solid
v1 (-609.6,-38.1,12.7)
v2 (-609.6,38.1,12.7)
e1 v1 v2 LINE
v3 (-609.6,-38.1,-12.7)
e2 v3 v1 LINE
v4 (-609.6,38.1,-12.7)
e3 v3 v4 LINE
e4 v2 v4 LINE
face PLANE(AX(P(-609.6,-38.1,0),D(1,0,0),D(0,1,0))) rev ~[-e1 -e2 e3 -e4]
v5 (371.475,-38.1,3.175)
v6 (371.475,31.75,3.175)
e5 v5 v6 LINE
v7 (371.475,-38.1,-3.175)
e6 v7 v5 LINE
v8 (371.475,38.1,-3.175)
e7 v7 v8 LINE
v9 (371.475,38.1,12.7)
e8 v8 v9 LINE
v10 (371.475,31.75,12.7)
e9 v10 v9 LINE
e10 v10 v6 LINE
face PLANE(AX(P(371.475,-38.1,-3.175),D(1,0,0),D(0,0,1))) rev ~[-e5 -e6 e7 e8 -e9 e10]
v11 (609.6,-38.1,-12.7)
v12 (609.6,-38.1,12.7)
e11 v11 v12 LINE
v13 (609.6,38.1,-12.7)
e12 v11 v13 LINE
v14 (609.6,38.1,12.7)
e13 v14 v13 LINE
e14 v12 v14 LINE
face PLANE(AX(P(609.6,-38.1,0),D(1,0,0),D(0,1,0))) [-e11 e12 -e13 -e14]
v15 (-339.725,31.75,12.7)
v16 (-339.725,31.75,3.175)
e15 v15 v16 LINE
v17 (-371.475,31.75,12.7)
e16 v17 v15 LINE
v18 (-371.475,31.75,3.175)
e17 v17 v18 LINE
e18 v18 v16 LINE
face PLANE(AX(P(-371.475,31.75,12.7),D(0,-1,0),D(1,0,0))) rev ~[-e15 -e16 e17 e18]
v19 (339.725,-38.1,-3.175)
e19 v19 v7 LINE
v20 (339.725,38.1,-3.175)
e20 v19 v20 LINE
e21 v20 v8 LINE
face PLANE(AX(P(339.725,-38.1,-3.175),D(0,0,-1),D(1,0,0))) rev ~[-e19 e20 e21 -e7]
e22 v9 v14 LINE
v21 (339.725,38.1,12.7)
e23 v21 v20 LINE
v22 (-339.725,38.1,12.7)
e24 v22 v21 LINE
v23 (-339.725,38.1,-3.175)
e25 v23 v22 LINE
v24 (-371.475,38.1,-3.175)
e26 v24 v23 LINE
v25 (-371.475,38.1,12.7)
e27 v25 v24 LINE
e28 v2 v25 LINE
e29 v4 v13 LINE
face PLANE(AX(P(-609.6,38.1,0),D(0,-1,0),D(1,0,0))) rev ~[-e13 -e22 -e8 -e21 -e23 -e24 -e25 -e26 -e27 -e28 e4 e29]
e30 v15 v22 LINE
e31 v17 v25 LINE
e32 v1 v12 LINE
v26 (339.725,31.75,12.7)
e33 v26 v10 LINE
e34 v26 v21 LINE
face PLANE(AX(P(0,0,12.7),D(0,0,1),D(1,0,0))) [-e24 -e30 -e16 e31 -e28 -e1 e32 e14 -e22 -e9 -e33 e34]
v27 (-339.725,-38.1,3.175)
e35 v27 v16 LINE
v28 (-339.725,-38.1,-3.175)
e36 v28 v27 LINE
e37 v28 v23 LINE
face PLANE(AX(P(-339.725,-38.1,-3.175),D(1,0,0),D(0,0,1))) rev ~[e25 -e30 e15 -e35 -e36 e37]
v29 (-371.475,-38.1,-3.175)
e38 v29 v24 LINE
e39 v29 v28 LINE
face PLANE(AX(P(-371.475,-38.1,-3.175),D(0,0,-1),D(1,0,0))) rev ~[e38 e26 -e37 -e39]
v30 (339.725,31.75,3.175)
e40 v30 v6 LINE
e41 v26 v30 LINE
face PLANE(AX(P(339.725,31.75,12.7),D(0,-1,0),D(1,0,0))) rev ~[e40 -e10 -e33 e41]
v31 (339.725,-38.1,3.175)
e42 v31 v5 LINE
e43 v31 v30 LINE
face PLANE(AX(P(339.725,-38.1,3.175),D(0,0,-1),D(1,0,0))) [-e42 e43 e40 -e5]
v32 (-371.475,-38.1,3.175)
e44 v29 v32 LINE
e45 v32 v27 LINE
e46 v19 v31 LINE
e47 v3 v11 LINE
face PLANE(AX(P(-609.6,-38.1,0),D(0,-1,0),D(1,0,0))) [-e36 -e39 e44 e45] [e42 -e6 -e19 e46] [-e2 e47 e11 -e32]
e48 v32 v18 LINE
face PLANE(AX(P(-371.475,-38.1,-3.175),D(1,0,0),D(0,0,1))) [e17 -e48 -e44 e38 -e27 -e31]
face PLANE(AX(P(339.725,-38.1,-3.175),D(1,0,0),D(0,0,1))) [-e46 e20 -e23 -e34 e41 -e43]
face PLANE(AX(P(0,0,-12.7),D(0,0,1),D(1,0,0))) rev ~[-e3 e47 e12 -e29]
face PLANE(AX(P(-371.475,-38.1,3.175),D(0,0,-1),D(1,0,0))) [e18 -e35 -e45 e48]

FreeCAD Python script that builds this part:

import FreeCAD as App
import Part
import Sketcher
from FreeCAD import Vector
Q = App.Units.Quantity


def add_polygon(sketch, points):
    """Adds a closed chain of lines whose ends are joined by coincident constraints."""
    first, n = sketch.GeometryCount, len(points)
    for a, b in zip(points, points[1:] + points[:1]):
        sketch.addGeometry(Part.LineSegment(App.Vector(*a, 0), App.Vector(*b, 0)), False)
    for i in range(n):
        sketch.addConstraint(Sketcher.Constraint("Coincident", first + i, 2, first + (i + 1) % n, 1))

doc = App.newDocument("Part")
body = doc.addObject("PartDesign::Body", "Body")

# Sketch on XY plane
sketch1 = doc.addObject("Sketcher::SketchObject", "Sketch")
body.addObject(sketch1)
sketch1.AttachmentSupport = (doc.XY_Plane, [""])
sketch1.MapMode = "FlatFace"
add_polygon(sketch1, [(-610, 38), (-610, -38), (610, -38), (610, 38)])  # lines 0-3
sketch1.addConstraint([
    Sketcher.Constraint("Vertical", 0),
    Sketcher.Constraint("Horizontal", 1),
    Sketcher.Constraint("Vertical", 2),
    Sketcher.Constraint("Horizontal", 3),
    Sketcher.Constraint("Symmetric", 0, 2, 2, 2, -1, 1),
    Sketcher.Constraint("DistanceX", 1, 1, 1, 2, Q("48 in")),
    Sketcher.Constraint("DistanceY", 0, 2, 0, 1, Q("3 in")),
])
pad1 = doc.addObject("PartDesign::Pad", "Pad")
body.addObject(pad1)
pad1.Profile = sketch1
pad1.Length = Q("1 in")
pad1.Midplane = True

# Sketch on XZ plane
sketch2 = doc.addObject("Sketcher::SketchObject", "Sketch001")
body.addObject(sketch2)
sketch2.AttachmentSupport = (doc.XZ_Plane, [""])
sketch2.MapMode = "FlatFace"
sketch2.AttachmentOffset = App.Placement(Vector(0, 0, 1.5 * 25.4), App.Rotation())
add_polygon(sketch2, [(-371, 3), (-371, -3), (-340, -3), (-340, 3)])  # lines 0-3
sketch2.addConstraint([
    Sketcher.Constraint("Vertical", 0),
    Sketcher.Constraint("Horizontal", 1),
    Sketcher.Constraint("Vertical", 2),
    Sketcher.Constraint("Horizontal", 3),
    Sketcher.Constraint("DistanceX", 1, 1, 1, 2, Q("1.25 in")),
    Sketcher.Constraint("DistanceY", 0, 2, 0, 1, Q("0.25 in")),
    Sketcher.Constraint("DistanceX", 0, 2, -1, 1, Q("14.625 in")),
    Sketcher.Constraint("DistanceY", 0, 2, -1, 1, Q("0.125 in")),
])
pocket1 = doc.addObject("PartDesign::Pocket", "Pocket")
body.addObject(pocket1)
pocket1.Profile = sketch2
pocket1.Type = "ThroughAll"

# Sketch on XZ plane
sketch3 = doc.addObject("Sketcher::SketchObject", "Sketch002")
body.addObject(sketch3)
sketch3.AttachmentSupport = (doc.XZ_Plane, [""])
sketch3.MapMode = "FlatFace"
sketch3.AttachmentOffset = App.Placement(Vector(0, 0, 1.5 * 25.4), App.Rotation())
add_polygon(sketch3, [(340, 3), (340, -3), (371, -3), (371, 3)])  # lines 0-3
sketch3.addConstraint([
    Sketcher.Constraint("Vertical", 0),
    Sketcher.Constraint("Horizontal", 1),
    Sketcher.Constraint("Vertical", 2),
    Sketcher.Constraint("Horizontal", 3),
    Sketcher.Constraint("DistanceX", 1, 1, 1, 2, Q("1.25 in")),
    Sketcher.Constraint("DistanceY", 0, 2, 0, 1, Q("0.25 in")),
    Sketcher.Constraint("DistanceX", -1, 1, 0, 2, Q("13.375 in")),
    Sketcher.Constraint("DistanceY", 0, 2, -1, 1, Q("0.125 in")),
])
pocket2 = doc.addObject("PartDesign::Pocket", "Pocket001")
body.addObject(pocket2)
pocket2.Profile = sketch3
pocket2.Type = "ThroughAll"

# Sketch on XY plane
sketch4 = doc.addObject("Sketcher::SketchObject", "Sketch003")
body.addObject(sketch4)
sketch4.AttachmentSupport = (doc.XY_Plane, [""])
sketch4.MapMode = "FlatFace"
sketch4.AttachmentOffset = App.Placement(Vector(0, 0, 0.5 * 25.4), App.Rotation())
add_polygon(sketch4, [(-371, 38), (-371, 32), (-340, 32), (-340, 38)])  # lines 0-3
sketch4.addConstraint([
    Sketcher.Constraint("Vertical", 0),
    Sketcher.Constraint("Horizontal", 1),
    Sketcher.Constraint("Vertical", 2),
    Sketcher.Constraint("Horizontal", 3),
    Sketcher.Constraint("DistanceX", 1, 1, 1, 2, Q("1.25 in")),
    Sketcher.Constraint("DistanceY", 0, 2, 0, 1, Q("0.25 in")),
    Sketcher.Constraint("DistanceY", -1, 1, 2, 2, Q("1.5 in")),
    Sketcher.Constraint("DistanceX", 0, 2, -1, 1, Q("14.625 in")),
])
pocket3 = doc.addObject("PartDesign::Pocket", "Pocket002")
body.addObject(pocket3)
pocket3.Profile = sketch4
pocket3.Length = Q("0.375 in")

# Sketch on XY plane
sketch5 = doc.addObject("Sketcher::SketchObject", "Sketch004")
body.addObject(sketch5)
sketch5.AttachmentSupport = (doc.XY_Plane, [""])
sketch5.MapMode = "FlatFace"
sketch5.AttachmentOffset = App.Placement(Vector(0, 0, 0.5 * 25.4), App.Rotation())
add_polygon(sketch5, [(340, 38), (340, 32), (371, 32), (371, 38)])  # lines 0-3
sketch5.addConstraint([
    Sketcher.Constraint("Vertical", 0),
    Sketcher.Constraint("Horizontal", 1),
    Sketcher.Constraint("Vertical", 2),
    Sketcher.Constraint("Horizontal", 3),
    Sketcher.Constraint("DistanceX", 1, 1, 1, 2, Q("1.25 in")),
    Sketcher.Constraint("DistanceY", 0, 2, 0, 1, Q("0.25 in")),
    Sketcher.Constraint("DistanceY", -1, 1, 2, 2, Q("1.5 in")),
    Sketcher.Constraint("DistanceX", -1, 1, 0, 2, Q("13.375 in")),
])
pocket4 = doc.addObject("PartDesign::Pocket", "Pocket003")
body.addObject(pocket4)
pocket4.Profile = sketch5
pocket4.Length = Q("0.375 in")

doc.recompute()
